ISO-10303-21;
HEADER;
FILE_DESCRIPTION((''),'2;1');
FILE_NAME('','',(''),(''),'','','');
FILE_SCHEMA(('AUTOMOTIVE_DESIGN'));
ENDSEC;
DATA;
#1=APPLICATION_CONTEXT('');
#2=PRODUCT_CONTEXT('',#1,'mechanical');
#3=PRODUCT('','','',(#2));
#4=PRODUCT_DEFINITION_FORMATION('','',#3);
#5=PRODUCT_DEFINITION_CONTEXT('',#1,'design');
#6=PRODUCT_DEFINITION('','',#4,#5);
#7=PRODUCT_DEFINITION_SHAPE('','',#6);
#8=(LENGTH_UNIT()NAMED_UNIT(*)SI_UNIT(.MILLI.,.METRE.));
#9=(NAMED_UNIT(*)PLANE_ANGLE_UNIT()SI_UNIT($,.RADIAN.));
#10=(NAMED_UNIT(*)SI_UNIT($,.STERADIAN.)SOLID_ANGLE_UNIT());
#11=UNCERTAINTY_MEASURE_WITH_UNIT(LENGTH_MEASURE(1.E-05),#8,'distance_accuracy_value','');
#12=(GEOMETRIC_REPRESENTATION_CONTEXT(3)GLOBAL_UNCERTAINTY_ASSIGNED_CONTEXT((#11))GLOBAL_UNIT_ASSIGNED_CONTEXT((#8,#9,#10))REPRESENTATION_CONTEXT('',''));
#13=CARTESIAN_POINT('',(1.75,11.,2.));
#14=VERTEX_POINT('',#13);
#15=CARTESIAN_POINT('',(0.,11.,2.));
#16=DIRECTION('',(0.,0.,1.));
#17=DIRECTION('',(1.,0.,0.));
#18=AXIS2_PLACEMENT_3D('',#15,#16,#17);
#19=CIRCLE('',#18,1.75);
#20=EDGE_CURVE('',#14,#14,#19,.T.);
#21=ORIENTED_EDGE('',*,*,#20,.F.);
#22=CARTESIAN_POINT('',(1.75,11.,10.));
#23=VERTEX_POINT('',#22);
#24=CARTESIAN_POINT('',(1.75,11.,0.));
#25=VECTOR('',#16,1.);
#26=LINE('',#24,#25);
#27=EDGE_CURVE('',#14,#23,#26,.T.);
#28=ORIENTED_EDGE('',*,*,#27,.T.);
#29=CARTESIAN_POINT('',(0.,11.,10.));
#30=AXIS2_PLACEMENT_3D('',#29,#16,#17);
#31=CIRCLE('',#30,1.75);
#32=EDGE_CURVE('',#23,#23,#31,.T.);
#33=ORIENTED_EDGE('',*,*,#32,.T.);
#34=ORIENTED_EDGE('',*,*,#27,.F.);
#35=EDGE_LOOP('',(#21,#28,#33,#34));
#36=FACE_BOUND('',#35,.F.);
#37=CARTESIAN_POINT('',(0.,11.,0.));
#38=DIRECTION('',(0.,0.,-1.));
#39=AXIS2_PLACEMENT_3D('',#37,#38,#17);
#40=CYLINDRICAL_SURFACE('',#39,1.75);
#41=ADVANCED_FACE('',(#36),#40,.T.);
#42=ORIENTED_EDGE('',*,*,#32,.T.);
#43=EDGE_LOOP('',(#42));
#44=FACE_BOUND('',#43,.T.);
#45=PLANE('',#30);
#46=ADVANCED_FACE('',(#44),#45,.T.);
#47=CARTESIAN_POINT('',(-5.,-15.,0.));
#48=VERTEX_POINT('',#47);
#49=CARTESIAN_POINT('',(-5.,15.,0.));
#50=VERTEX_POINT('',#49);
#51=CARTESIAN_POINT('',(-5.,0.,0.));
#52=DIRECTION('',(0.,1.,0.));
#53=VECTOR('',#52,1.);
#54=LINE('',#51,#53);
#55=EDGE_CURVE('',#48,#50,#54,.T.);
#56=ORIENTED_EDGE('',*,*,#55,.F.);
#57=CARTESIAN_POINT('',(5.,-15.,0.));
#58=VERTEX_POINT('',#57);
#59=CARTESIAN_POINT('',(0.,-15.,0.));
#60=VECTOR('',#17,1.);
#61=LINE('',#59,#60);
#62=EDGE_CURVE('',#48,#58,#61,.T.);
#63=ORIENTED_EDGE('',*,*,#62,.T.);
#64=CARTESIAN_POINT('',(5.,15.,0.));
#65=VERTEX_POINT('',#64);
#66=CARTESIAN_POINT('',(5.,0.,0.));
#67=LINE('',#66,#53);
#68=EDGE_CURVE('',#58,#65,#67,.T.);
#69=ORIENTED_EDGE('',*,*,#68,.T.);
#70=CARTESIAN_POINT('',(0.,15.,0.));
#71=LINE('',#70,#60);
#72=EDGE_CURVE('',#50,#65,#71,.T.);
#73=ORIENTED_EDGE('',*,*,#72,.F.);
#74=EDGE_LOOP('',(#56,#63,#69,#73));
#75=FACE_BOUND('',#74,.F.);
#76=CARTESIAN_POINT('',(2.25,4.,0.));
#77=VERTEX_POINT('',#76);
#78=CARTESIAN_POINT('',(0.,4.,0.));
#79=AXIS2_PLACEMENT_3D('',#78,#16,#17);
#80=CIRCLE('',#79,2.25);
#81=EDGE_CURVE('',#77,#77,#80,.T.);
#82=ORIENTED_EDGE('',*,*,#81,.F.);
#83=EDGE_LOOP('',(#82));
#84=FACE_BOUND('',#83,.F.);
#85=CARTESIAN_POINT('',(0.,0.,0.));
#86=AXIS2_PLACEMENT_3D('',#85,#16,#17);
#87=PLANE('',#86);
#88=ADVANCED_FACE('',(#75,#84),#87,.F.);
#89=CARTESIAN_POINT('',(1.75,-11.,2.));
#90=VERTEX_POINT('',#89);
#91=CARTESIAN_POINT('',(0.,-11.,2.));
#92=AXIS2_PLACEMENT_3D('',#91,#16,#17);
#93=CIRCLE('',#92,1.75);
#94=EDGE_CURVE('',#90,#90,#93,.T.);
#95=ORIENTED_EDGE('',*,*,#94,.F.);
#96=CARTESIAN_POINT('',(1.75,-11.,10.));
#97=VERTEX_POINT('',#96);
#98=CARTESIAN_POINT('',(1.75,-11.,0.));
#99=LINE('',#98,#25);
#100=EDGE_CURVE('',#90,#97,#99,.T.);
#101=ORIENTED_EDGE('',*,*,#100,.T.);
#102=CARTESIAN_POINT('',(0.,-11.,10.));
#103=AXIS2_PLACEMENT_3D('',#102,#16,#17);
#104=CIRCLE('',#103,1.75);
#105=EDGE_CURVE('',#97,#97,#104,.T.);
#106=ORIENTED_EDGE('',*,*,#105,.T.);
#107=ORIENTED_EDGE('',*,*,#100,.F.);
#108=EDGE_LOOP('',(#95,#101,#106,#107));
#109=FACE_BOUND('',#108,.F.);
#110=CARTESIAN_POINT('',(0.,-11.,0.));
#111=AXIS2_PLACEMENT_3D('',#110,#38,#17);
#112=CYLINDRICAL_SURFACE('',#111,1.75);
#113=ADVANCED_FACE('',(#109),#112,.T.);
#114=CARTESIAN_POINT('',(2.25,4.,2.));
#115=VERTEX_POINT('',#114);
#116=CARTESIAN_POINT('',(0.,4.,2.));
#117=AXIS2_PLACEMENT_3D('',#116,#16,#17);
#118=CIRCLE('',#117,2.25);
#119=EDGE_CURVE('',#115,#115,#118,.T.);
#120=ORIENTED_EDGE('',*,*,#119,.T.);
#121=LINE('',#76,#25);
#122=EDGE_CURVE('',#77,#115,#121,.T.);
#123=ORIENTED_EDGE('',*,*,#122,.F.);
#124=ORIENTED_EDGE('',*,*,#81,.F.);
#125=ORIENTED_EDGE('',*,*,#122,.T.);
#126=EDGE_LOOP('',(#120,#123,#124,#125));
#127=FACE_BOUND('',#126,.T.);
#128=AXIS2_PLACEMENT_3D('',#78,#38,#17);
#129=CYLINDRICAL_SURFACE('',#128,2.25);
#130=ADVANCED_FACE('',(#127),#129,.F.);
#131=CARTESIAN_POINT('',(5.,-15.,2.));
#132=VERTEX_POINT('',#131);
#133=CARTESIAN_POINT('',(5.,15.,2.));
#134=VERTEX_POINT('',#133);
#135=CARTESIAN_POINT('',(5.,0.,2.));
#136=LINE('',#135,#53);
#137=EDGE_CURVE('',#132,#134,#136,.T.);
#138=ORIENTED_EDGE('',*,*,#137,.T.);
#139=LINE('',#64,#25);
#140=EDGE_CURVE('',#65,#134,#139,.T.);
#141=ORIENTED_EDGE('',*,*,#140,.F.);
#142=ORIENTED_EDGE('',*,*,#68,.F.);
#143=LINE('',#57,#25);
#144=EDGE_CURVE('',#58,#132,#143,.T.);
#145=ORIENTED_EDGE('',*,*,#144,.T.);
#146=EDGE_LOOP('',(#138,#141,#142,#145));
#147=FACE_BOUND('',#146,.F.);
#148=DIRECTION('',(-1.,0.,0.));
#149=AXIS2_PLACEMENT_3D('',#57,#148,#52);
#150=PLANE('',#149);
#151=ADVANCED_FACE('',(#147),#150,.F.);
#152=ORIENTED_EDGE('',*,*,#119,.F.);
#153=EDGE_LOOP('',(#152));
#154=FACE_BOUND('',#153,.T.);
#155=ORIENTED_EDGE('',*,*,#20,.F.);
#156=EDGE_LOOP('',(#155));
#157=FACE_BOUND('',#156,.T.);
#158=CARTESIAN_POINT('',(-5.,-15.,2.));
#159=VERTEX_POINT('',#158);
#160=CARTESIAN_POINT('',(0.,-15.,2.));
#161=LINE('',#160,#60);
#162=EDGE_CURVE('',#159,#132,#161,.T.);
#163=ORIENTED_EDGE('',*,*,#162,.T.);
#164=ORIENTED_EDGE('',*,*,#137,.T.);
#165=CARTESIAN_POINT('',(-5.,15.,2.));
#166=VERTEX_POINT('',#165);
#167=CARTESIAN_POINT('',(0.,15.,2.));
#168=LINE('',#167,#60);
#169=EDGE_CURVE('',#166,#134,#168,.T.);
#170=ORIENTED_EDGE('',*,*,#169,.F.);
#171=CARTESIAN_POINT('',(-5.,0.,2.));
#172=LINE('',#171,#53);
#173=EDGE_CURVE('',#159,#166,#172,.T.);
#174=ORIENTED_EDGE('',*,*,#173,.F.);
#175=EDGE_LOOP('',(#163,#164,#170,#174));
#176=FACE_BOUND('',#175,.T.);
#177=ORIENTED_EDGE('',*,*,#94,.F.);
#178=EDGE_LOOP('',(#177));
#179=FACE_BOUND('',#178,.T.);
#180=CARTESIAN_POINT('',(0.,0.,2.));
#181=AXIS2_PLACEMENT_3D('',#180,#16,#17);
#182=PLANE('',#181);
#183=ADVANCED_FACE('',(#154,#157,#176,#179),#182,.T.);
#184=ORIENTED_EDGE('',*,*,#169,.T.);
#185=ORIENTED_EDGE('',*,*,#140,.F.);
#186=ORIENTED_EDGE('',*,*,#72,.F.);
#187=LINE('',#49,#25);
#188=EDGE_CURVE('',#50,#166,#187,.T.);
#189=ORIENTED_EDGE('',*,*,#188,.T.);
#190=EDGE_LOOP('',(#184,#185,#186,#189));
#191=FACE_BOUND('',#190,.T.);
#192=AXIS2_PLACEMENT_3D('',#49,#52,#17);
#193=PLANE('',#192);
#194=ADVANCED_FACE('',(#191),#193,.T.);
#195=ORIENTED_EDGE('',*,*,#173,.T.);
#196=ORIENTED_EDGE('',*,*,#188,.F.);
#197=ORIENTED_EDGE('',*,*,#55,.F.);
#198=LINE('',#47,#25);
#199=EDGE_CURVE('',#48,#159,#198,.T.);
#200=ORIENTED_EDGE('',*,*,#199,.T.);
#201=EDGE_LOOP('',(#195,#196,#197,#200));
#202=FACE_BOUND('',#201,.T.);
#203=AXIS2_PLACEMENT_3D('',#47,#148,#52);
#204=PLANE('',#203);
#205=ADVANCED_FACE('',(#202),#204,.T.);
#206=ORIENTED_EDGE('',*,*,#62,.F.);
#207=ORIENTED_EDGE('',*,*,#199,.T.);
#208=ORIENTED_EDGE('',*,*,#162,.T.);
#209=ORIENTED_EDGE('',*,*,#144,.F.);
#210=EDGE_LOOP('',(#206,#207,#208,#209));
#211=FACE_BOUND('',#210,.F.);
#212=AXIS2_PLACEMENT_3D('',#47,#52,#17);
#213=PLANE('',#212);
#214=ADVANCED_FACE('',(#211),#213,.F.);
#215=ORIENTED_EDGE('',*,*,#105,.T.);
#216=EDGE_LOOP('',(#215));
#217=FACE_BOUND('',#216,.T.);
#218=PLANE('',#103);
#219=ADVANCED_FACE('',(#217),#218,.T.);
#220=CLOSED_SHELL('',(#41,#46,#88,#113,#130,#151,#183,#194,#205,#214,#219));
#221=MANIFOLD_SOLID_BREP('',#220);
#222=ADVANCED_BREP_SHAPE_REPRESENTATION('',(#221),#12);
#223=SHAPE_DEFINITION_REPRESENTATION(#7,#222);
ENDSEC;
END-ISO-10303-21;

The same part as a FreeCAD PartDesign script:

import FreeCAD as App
import Part
import Sketcher
from FreeCAD import Vector
Q = App.Units.Quantity


def add_polygon(sketch, points):
    """Adds a closed chain of lines whose ends are joined by coincident constraints."""
    first, n = sketch.GeometryCount, len(points)
    for a, b in zip(points, points[1:] + points[:1]):
        sketch.addGeometry(Part.LineSegment(App.Vector(*a, 0), App.Vector(*b, 0)), False)
    for i in range(n):
        sketch.addConstraint(Sketcher.Constraint("Coincident", first + i, 2, first + (i + 1) % n, 1))

doc = App.newDocument("Part")
body = doc.addObject("PartDesign::Body", "Body")
body.AllowCompound = True

sketch1 = body.newObject("Sketcher::SketchObject", "Sketch")
sketch1.AttachmentSupport = (doc.getObject("XY_Plane"), [""])
sketch1.MapMode = "FlatFace"
sketch1.addGeometry([
    Part.Circle(Vector(0, 11, 0), Vector(0, 0, 1), 1.75),
    Part.Circle(Vector(0, -11, 0), Vector(0, 0, 1), 1.75),
], False)
sketch1.addConstraint([
    Sketcher.Constraint("Equal", 0, 1),
    Sketcher.Constraint("Symmetric", 0, 3, 1, 3, -1, 1),
    Sketcher.Constraint("PointOnObject", 0, 3, -2),
    Sketcher.Constraint("Diameter", 0, Q("3.5 mm")),
    Sketcher.Constraint("DistanceY", -1, 1, 0, 3, Q("11 mm")),
])
pad1 = body.newObject("PartDesign::Pad", "Pad")
pad1.Profile = sketch1
pad1.Length = 10

sketch2 = body.newObject("Sketcher::SketchObject", "Sketch001")
sketch2.AttachmentSupport = (doc.getObject("XY_Plane"), [""])
sketch2.MapMode = "FlatFace"
add_polygon(sketch2, [(-5, 15), (-5, -15), (5, -15), (5, 15)])
sketch2.addGeometry(Part.Circle(Vector(0, -11, 0), Vector(0, 0, 1), 1.75), False)
sketch2.addGeometry(Part.Circle(Vector(0, 4, 0), Vector(0, 0, 1), 2.25), False)
sketch2.addGeometry(Part.Circle(Vector(0, 11, 0), Vector(0, 0, 1), 1.75), False)
sketch2.addConstraint([
    Sketcher.Constraint("Vertical", 0),
    Sketcher.Constraint("Horizontal", 1),
    Sketcher.Constraint("Vertical", 2),
    Sketcher.Constraint("Horizontal", 3),
    Sketcher.Constraint("Equal", 4, 6),
    Sketcher.Constraint("Symmetric", 4, 3, 6, 3, -1, 1),
    Sketcher.Constraint("Symmetric", 0, 2, 2, 2, -1, 1),
    Sketcher.Constraint("PointOnObject", 4, 3, -2),
    Sketcher.Constraint("PointOnObject", 5, 3, -2),
    Sketcher.Constraint("Diameter", 4, Q("3.5 mm")),
    Sketcher.Constraint("Diameter", 5, Q("4.5 mm")),
    Sketcher.Constraint("DistanceX", 1, 1, 1, 2, Q("10 mm")),
    Sketcher.Constraint("DistanceY", 0, 2, 0, 1, Q("30 mm")),
    Sketcher.Constraint("DistanceY", 4, 3, -1, 1, Q("11 mm")),
    Sketcher.Constraint("DistanceY", -1, 1, 5, 3, Q("4 mm")),
])
pad2 = body.newObject("PartDesign::Pad", "Pad001")
pad2.Profile = sketch2
pad2.Length = 2

doc.recompute()
